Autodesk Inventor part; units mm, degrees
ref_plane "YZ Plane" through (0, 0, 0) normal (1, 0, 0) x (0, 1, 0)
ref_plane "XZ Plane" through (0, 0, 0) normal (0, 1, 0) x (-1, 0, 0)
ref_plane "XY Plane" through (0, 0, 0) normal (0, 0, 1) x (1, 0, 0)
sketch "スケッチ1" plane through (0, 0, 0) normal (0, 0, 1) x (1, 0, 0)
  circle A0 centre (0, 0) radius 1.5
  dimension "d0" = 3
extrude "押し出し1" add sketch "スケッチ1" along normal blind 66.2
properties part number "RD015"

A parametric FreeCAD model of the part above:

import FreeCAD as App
import Part
import Sketcher

V = App.Vector

doc = App.newDocument("Part")
body = doc.addObject("PartDesign::Body", "Body")

sketch1 = body.newObject("Sketcher::SketchObject", "Sketch")
sketch1.AttachmentSupport = (doc.getObject("XY_Plane"), [""])
sketch1.MapMode = "FlatFace"
sketch1.addGeometry(Part.Circle(V(0, 0, 0), V(0, 0, 1), 1.5), False)
sketch1.addConstraint([
    Sketcher.Constraint("Coincident", 0, 3, -1, 1),
    Sketcher.Constraint("Diameter", 0, 3.0),
])
pad1 = body.newObject("PartDesign::Pad", "Pad")
pad1.Profile = sketch1
pad1.Length = 66.2

doc.recompute()
